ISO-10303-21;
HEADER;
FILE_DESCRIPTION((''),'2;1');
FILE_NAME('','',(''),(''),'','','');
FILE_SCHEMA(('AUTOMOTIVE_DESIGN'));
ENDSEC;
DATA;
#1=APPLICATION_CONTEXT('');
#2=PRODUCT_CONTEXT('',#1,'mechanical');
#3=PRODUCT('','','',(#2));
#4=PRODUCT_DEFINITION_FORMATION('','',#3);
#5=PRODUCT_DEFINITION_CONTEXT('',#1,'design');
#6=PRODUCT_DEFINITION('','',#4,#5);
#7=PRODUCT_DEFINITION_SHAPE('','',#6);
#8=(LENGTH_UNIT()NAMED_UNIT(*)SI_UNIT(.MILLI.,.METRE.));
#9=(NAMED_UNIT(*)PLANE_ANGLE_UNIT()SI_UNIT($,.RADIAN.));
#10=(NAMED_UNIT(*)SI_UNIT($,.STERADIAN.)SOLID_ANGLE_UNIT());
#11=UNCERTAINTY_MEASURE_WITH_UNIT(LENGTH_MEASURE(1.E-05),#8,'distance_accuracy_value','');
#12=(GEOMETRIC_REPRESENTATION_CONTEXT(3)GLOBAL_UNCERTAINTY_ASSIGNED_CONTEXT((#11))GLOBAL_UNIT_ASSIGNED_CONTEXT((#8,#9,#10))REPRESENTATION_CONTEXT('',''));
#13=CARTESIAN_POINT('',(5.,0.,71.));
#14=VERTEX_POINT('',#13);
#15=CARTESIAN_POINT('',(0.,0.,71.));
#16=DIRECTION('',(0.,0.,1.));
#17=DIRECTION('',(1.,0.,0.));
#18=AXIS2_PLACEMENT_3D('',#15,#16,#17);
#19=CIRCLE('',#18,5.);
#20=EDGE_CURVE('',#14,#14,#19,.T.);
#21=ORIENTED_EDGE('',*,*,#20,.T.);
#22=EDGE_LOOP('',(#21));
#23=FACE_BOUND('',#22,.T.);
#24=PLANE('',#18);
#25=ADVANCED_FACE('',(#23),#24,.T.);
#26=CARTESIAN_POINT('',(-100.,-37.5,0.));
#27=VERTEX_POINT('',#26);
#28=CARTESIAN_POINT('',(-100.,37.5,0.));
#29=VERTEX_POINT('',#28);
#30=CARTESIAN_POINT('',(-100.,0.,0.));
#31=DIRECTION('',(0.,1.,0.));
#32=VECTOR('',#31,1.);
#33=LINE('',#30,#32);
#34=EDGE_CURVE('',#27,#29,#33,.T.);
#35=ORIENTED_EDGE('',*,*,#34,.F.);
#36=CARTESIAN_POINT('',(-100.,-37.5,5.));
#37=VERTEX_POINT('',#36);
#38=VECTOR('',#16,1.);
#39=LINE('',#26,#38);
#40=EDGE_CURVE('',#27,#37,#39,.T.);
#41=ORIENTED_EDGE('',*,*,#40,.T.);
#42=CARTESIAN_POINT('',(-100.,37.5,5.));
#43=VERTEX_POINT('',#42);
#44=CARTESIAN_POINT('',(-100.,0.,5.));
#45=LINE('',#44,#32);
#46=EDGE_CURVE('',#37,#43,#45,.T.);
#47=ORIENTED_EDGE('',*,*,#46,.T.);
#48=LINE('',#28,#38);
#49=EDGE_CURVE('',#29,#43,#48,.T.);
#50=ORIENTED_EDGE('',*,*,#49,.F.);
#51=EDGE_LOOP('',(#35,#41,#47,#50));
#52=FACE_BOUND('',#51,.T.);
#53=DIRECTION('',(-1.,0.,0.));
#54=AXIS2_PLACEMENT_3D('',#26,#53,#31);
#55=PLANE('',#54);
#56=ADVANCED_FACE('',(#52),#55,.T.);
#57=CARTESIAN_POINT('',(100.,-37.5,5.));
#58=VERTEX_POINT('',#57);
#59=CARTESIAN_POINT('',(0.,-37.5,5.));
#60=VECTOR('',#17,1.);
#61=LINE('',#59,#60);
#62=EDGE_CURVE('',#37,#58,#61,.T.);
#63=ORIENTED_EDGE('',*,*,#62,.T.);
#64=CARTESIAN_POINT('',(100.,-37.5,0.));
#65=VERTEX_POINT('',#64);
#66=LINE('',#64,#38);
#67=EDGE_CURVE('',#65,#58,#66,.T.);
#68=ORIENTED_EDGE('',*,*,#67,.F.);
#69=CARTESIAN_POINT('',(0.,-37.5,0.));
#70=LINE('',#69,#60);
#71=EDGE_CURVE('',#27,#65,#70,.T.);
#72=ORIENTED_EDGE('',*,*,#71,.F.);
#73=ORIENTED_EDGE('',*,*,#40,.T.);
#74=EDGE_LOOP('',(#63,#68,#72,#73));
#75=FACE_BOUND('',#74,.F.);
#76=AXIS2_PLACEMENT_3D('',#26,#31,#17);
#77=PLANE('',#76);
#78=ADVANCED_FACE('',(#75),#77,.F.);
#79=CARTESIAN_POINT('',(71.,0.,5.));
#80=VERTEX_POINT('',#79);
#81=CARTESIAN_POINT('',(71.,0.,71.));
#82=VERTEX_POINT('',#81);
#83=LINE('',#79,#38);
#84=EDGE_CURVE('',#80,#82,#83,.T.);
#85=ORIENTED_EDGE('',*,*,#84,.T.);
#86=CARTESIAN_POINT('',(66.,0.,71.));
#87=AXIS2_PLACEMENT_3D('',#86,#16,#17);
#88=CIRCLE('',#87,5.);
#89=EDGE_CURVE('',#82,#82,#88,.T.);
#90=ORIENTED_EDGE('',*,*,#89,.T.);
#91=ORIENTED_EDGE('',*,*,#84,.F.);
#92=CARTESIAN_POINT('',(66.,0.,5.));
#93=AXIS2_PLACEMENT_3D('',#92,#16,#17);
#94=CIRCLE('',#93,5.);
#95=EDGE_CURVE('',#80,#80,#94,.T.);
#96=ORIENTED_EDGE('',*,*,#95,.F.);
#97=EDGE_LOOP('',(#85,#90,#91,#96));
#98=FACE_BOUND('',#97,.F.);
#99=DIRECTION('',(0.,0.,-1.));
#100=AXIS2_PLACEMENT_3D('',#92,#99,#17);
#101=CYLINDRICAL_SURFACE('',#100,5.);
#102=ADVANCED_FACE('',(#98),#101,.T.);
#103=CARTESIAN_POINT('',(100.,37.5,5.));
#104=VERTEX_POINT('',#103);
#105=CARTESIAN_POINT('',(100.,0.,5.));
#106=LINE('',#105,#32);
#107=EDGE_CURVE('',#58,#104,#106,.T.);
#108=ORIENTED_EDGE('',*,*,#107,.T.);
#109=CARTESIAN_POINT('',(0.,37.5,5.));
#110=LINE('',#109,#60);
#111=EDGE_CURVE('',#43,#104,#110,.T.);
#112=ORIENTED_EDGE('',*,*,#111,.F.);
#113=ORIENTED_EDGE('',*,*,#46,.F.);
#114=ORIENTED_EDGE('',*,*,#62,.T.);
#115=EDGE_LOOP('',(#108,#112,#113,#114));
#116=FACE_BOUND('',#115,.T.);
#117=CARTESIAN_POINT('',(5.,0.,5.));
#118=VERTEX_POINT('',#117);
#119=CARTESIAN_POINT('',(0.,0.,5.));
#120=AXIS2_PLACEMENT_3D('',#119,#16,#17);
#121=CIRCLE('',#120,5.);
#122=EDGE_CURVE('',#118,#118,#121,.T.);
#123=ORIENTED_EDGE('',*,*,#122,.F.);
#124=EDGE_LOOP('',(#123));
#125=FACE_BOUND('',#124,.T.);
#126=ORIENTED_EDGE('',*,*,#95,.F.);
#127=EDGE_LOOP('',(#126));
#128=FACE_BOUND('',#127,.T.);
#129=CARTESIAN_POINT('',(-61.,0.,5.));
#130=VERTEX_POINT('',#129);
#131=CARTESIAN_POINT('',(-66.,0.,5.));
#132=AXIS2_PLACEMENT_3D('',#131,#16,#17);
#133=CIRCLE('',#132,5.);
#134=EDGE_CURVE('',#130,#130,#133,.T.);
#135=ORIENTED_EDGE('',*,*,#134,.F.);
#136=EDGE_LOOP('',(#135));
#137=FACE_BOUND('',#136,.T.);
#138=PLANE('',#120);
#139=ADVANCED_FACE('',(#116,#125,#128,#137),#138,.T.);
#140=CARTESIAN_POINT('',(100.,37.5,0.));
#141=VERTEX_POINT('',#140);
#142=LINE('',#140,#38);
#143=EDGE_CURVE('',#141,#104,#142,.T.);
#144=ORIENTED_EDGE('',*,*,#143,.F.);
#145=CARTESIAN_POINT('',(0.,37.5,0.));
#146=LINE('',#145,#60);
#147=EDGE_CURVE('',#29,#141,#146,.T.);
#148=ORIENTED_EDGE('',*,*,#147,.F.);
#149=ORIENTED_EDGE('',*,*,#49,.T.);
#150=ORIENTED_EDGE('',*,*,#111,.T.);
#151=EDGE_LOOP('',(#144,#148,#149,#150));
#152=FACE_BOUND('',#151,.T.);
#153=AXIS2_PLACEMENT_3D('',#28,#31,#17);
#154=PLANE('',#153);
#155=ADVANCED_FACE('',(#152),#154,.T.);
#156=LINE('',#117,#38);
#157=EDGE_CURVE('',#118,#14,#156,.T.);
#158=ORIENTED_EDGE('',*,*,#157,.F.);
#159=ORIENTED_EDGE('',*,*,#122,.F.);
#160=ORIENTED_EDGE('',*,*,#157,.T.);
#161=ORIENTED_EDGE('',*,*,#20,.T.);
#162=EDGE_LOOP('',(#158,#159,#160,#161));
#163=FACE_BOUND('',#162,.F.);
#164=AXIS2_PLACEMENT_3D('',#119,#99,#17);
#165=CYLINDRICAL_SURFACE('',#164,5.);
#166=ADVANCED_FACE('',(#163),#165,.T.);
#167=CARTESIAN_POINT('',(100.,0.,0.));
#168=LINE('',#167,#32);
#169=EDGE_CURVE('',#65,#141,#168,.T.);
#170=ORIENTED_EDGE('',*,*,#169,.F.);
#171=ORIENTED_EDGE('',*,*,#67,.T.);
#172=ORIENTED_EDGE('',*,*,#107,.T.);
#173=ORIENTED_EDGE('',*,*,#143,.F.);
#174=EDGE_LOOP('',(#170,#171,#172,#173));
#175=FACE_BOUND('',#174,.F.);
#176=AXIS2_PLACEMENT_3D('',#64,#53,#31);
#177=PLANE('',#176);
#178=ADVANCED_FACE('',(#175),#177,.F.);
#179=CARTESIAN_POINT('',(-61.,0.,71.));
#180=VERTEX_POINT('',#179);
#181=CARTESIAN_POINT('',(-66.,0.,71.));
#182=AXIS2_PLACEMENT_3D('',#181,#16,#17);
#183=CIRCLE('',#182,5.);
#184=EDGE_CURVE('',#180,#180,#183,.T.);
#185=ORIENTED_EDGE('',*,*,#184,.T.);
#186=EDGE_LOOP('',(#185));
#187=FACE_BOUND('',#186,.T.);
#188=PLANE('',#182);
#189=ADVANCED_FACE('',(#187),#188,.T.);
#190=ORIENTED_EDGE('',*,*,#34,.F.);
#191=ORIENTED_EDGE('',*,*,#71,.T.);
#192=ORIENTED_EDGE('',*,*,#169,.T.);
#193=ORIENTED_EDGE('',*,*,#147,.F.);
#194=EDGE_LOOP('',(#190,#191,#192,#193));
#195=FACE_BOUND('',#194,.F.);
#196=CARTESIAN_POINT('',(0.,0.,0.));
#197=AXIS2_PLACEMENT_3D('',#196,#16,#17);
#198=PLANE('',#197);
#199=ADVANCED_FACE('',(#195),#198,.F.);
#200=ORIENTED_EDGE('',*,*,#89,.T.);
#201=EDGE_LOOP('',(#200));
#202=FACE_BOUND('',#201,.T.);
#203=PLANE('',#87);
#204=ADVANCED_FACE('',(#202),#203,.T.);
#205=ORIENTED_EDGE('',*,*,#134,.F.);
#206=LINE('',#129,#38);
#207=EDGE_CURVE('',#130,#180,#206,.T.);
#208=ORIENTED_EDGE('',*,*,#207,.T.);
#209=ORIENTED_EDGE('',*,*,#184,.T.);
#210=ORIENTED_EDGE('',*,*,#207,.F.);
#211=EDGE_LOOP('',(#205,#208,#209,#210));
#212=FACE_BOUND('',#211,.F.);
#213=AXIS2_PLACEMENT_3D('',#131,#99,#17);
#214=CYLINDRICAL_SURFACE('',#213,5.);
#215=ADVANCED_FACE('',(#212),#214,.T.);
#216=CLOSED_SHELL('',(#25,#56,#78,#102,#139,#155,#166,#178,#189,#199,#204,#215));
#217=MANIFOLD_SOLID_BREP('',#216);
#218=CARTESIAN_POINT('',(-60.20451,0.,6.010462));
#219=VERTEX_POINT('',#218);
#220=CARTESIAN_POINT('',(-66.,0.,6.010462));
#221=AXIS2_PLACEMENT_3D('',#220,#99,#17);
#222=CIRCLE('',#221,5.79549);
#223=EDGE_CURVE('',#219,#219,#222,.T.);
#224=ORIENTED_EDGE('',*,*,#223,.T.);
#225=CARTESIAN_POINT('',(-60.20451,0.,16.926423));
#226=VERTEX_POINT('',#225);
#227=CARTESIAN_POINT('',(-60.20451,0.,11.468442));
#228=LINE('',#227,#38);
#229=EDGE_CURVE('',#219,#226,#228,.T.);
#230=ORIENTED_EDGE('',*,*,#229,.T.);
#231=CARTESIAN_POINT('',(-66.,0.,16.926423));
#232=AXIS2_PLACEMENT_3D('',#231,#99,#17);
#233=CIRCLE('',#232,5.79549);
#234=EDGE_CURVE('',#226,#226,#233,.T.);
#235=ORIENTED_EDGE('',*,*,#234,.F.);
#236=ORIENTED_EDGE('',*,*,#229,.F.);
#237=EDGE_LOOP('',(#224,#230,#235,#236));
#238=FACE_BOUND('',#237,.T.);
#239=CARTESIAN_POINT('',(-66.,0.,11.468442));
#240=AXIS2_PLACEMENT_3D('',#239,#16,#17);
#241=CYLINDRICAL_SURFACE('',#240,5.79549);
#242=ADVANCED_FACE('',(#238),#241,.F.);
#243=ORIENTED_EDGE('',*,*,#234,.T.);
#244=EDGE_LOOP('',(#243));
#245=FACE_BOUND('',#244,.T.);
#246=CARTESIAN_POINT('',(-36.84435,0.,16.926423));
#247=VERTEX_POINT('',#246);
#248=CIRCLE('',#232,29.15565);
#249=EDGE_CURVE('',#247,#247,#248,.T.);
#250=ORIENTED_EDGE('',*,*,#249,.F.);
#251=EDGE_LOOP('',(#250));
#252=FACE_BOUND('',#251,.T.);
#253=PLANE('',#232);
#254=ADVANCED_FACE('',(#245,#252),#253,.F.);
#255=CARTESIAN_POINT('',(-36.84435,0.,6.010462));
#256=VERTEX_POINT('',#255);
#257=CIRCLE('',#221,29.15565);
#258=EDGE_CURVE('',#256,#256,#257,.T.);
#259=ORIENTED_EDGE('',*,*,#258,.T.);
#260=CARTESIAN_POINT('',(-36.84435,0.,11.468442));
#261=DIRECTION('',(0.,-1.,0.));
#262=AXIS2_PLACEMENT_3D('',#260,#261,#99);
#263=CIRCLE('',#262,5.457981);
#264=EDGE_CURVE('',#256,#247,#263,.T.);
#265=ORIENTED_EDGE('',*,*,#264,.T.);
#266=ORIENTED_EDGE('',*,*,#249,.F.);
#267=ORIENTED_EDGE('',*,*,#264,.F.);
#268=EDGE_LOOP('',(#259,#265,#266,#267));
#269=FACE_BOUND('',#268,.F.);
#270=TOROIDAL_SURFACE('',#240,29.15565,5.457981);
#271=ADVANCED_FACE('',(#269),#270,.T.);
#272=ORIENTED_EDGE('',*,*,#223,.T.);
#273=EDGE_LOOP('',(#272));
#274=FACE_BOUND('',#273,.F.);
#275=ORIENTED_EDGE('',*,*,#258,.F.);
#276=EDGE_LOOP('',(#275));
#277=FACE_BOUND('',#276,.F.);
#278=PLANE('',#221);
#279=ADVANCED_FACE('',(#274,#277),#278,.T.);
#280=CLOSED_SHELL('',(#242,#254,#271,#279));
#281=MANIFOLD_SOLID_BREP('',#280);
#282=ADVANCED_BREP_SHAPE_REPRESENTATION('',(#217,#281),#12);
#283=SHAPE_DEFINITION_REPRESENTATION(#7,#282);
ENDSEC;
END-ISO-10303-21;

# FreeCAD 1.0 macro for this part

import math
import FreeCAD as App
import Part
import Sketcher


def add_polygon(sketch, points):
    """Adds a closed chain of lines whose ends are joined by coincident constraints."""
    first, n = sketch.GeometryCount, len(points)
    for a, b in zip(points, points[1:] + points[:1]):
        sketch.addGeometry(Part.LineSegment(App.Vector(*a, 0), App.Vector(*b, 0)), False)
    for i in range(n):
        sketch.addConstraint(Sketcher.Constraint("Coincident", first + i, 2, first + (i + 1) % n, 1))

doc = App.newDocument("Part")
body = doc.addObject("PartDesign::Body", "Body")

sketch1 = body.newObject("Sketcher::SketchObject", "Sketch")
sketch1.AttachmentSupport = (doc.getObject("XY_Plane"), [""])
sketch1.MapMode = "FlatFace"
add_polygon(sketch1, [(-100, 38), (-100, -38), (100, -38), (100, 38)])
sketch1.addConstraint(Sketcher.Constraint("Vertical", 0))
sketch1.addConstraint(Sketcher.Constraint("Horizontal", 1))
sketch1.addConstraint(Sketcher.Constraint("Vertical", 2))
sketch1.addConstraint(Sketcher.Constraint("Horizontal", 3))
sketch1.addConstraint(Sketcher.Constraint("Symmetric", 0, 2, 2, 2, -1, 1))
sketch1.addConstraint(Sketcher.Constraint("DistanceX", 1, 1, 1, 2, 200.0))
sketch1.addConstraint(Sketcher.Constraint("DistanceY", 0, 2, 0, 1, 75.0))
pad1 = body.newObject("PartDesign::Pad", "Pad")
pad1.Profile = sketch1
pad1.Length = 5

sketch2 = body.newObject("Sketcher::SketchObject", "Sketch001")
sketch2.AttachmentSupport = (doc.getObject("XY_Plane"), [""])
sketch2.MapMode = "FlatFace"
sketch2.AttachmentOffset = App.Placement(App.Vector(0, 0, 5), App.Rotation())
sketch2.addGeometry(Part.Circle(App.Vector(0, 0, 0), App.Vector(0, 0, 1), 5), False)
sketch2.addGeometry(Part.Circle(App.Vector(-66, 0, 0), App.Vector(0, 0, 1), 5), False)
sketch2.addGeometry(Part.Circle(App.Vector(66, 0, 0), App.Vector(0, 0, 1), 5), False)
sketch2.addConstraint(Sketcher.Constraint("Coincident", 0, 3, -1, 1))
sketch2.addConstraint(Sketcher.Constraint("Equal", 0, 1))
sketch2.addConstraint(Sketcher.Constraint("Equal", 1, 2))
sketch2.addConstraint(Sketcher.Constraint("Symmetric", 1, 3, 2, 3, -1, 1))
sketch2.addConstraint(Sketcher.Constraint("PointOnObject", 1, 3, -1))
sketch2.addConstraint(Sketcher.Constraint("Diameter", 0, 10.0))
sketch2.addConstraint(Sketcher.Constraint("DistanceX", 1, 3, -1, 1, 66.0))
pad2 = body.newObject("PartDesign::Pad", "Pad001")
pad2.Profile = sketch2
pad2.Length = 66
body2 = doc.addObject("PartDesign::Body", "Body001")

sketch3 = body2.newObject("Sketcher::SketchObject", "Sketch002")
sketch3.AttachmentSupport = (doc.getObject("XZ_Plane001"), [""])
sketch3.MapMode = "FlatFace"
sketch3.addGeometry(Part.LineSegment(App.Vector(-60, 17, 0), App.Vector(-60, 6, 0)), False)
sketch3.addGeometry(Part.LineSegment(App.Vector(-60, 6, 0), App.Vector(-37, 6, 0)), False)
sketch3.addGeometry(Part.ArcOfCircle(Part.Circle(App.Vector(-37, 11, 0), App.Vector(0, 0, 1), 5), math.radians(-90), math.radians(90)), False)
sketch3.addGeometry(Part.LineSegment(App.Vector(-37, 17, 0), App.Vector(-60, 17, 0)), False)
sketch3.addGeometry(Part.LineSegment(App.Vector(-66, 17, 0), App.Vector(-66, 6, 0)), True)
sketch3.addConstraint(Sketcher.Constraint("Coincident", 0, 2, 1, 1))
sketch3.addConstraint(Sketcher.Constraint("Tangent", 1, 2, 2, 1))
sketch3.addConstraint(Sketcher.Constraint("Tangent", 2, 2, 3, 1))
sketch3.addConstraint(Sketcher.Constraint("Coincident", 3, 2, 0, 1))
sketch3.addConstraint(Sketcher.Constraint("Vertical", 0))
sketch3.addConstraint(Sketcher.Constraint("Horizontal", 1))
sketch3.addConstraint(Sketcher.Constraint("Horizontal", 3))
sketch3.addConstraint(Sketcher.Constraint("Vertical", 4))
sketch3.addConstraint(Sketcher.Constraint("Horizontal", 3, 2, 4, 1))
sketch3.addConstraint(Sketcher.Constraint("Horizontal", 1, 2, 4, 2))
sketch3.addConstraint(Sketcher.Constraint("DistanceX", 4, 1, -1, 1, 66.0))
sketch3.addConstraint(Sketcher.Constraint("Radius", 2, 5.457981))
sketch3.addConstraint(Sketcher.Constraint("DistanceX", 1, 1, 1, 2, 23.360159))
sketch3.addConstraint(Sketcher.Constraint("DistanceX", 2, 3, -1, 1, 36.84435))
sketch3.addConstraint(Sketcher.Constraint("DistanceY", -1, 1, 0, 2, 6.010462))
revolution = body2.newObject("PartDesign::Revolution", "Revolution")
revolution.Profile = sketch3
revolution.ReferenceAxis = (sketch3, ["Axis0"])
revolution.Angle = 360

doc.recompute()
